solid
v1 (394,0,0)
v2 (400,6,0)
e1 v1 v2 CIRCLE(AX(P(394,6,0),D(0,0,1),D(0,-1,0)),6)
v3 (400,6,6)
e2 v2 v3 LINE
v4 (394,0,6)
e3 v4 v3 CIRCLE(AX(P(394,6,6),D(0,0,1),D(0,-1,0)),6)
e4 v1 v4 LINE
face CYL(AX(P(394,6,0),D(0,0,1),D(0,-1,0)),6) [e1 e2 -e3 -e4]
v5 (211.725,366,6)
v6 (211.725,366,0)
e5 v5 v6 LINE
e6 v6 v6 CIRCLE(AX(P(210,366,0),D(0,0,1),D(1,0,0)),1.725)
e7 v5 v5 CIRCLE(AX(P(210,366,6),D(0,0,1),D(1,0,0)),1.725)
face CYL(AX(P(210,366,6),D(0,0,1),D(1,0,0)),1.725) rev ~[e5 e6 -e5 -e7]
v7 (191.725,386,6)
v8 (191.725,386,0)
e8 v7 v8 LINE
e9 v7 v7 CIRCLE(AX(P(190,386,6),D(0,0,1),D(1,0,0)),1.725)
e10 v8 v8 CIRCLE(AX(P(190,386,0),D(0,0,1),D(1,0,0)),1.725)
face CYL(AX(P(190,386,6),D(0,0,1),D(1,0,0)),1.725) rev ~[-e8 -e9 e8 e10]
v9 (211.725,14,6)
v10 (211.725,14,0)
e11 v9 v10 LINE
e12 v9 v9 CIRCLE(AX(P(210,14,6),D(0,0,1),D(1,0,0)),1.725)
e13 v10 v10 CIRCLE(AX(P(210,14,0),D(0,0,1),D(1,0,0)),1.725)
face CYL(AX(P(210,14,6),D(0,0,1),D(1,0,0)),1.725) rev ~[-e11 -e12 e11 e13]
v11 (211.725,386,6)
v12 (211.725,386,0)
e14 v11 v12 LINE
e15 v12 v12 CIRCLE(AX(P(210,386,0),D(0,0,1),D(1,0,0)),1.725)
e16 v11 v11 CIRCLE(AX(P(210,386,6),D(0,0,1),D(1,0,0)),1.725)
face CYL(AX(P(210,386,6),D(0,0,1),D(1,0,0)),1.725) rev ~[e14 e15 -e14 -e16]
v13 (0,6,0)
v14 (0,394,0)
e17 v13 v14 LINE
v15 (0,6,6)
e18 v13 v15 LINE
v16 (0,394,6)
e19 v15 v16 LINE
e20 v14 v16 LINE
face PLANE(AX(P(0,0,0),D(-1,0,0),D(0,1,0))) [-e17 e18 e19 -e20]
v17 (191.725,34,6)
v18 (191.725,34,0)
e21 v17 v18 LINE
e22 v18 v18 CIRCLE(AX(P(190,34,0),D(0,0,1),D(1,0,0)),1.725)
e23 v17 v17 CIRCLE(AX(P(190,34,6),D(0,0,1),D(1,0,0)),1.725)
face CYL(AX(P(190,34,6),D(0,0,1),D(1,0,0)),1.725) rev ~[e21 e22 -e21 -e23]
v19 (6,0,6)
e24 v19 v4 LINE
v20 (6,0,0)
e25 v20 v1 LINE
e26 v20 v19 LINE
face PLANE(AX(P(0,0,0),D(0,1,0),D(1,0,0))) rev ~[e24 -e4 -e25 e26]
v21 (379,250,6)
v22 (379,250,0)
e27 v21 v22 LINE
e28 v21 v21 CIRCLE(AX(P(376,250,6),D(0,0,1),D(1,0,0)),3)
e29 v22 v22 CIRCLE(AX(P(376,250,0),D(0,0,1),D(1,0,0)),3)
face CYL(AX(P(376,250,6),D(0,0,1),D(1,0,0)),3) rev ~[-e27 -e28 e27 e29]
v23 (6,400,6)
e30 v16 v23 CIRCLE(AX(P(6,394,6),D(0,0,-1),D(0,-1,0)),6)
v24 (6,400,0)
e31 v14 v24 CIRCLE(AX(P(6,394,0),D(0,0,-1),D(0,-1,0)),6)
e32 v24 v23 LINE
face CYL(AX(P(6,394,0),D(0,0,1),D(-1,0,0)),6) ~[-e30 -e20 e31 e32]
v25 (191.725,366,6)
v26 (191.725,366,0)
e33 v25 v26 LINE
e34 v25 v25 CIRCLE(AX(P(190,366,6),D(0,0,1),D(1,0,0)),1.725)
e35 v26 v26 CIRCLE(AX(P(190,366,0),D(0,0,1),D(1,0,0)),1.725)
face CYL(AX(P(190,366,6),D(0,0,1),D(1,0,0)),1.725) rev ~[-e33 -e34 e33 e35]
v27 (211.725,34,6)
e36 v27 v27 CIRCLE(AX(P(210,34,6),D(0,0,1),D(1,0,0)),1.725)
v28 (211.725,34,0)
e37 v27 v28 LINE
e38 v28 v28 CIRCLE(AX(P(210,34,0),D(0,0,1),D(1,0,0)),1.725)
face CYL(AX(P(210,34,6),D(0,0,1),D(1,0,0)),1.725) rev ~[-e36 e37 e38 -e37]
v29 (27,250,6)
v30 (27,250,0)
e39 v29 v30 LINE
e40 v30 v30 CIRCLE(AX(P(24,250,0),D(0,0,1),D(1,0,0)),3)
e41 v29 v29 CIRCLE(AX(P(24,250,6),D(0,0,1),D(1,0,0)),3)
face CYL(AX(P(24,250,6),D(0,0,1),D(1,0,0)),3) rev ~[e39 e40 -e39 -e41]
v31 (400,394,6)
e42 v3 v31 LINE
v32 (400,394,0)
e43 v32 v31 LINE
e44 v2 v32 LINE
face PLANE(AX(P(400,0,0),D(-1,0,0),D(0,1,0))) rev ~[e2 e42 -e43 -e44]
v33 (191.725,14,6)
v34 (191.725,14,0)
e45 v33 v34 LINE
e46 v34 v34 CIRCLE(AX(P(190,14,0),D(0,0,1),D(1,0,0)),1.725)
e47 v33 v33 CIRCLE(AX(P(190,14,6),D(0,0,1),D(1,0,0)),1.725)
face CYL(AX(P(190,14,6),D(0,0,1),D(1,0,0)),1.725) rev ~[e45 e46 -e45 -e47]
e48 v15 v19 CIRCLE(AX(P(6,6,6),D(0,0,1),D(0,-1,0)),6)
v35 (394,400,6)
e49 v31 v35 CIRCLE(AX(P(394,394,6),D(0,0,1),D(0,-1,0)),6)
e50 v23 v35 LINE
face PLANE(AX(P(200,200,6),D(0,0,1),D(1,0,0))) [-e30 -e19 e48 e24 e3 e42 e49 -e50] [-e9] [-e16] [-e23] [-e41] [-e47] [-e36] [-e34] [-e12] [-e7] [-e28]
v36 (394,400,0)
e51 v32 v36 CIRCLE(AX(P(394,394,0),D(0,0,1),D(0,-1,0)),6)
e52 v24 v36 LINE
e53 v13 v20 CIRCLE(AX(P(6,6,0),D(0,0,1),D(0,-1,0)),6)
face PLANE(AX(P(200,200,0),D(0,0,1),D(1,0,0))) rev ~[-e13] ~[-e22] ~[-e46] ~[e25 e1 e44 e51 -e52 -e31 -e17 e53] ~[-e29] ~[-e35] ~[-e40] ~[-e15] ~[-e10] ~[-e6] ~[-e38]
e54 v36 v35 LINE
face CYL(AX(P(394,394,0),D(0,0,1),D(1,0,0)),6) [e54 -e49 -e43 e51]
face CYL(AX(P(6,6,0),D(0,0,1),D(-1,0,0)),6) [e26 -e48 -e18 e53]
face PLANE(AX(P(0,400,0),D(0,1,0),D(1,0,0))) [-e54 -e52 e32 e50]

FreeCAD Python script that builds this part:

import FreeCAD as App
import Part
import Sketcher
from FreeCAD import Vector


def edges_at(feature, points):
    """Names of the edges that pass closest to the given points."""
    edges = feature.Shape.Edges
    near = lambda p: min(range(len(edges)), key=lambda i: edges[i].distToShape(Part.Vertex(*p))[0])
    return sorted({f"Edge{near(p) + 1}" for p in points})


def add_polygon(sketch, points):
    """Adds a closed chain of lines whose ends are joined by coincident constraints."""
    first, n = sketch.GeometryCount, len(points)
    for a, b in zip(points, points[1:] + points[:1]):
        sketch.addGeometry(Part.LineSegment(App.Vector(*a, 0), App.Vector(*b, 0)), False)
    for i in range(n):
        sketch.addConstraint(Sketcher.Constraint("Coincident", first + i, 2, first + (i + 1) % n, 1))

doc = App.newDocument("Part")
params = doc.addObject("Spreadsheet::Sheet", "Params")
for row, (alias, value) in enumerate([
    ("sketch1_width", "400 mm"),
    ("pad1_length", "6 mm"),
    ("fillet_radius", "6 mm"),
    ("sketch2_diameter", "6 mm"),
    ("sketch2_diameter2", "3.45 mm"),
], start=1):
    params.set(f"A{row}", alias)
    params.set(f"B{row}", "=" + value)
    params.setAlias(f"B{row}", alias)

body = doc.addObject("PartDesign::Body", "Body")

# Sketch on XY plane
sketch1 = doc.addObject("Sketcher::SketchObject", "Sketch")
body.addObject(sketch1)
sketch1.AttachmentSupport = (doc.XY_Plane, [""])
sketch1.MapMode = "FlatFace"
add_polygon(sketch1, [(0, 400), (0, 0), (400, 0), (400, 400)])  # lines 0-3
sketch1.addConstraint([
    Sketcher.Constraint("Vertical", 0),
    Sketcher.Constraint("Horizontal", 1),
    Sketcher.Constraint("Vertical", 2),
    Sketcher.Constraint("Horizontal", 3),
    Sketcher.Constraint("Coincident", 0, 2, -1, 1),
    Sketcher.Constraint("Equal", 3, 0),
    Sketcher.Constraint("DistanceX", 1, 1, 1, 2, 400.0),
])
sketch1.setExpression("Constraints[10]", "Params.sketch1_width")
pad1 = doc.addObject("PartDesign::Pad", "Pad")
body.addObject(pad1)
pad1.Profile = sketch1
pad1.setExpression("Length", "Params.pad1_length")
doc.recompute()

fillet = doc.addObject("PartDesign::Fillet", "Fillet")
body.addObject(fillet)
fillet.Base = (pad1, edges_at(pad1, [
    (0, 400, 3),
    (400, 400, 3),
    (400, 0, 3),
    (0, 0, 3),
]))
fillet.setExpression("Radius", "Params.fillet_radius")

# Sketch on XY plane
sketch2 = doc.addObject("Sketcher::SketchObject", "Sketch001")
body.addObject(sketch2)
sketch2.AttachmentSupport = (doc.XY_Plane, [""])
sketch2.MapMode = "FlatFace"
sketch2.AttachmentOffset = App.Placement(Vector(0, 0, 6), App.Rotation())
sketch2.addGeometry([
    Part.Circle(Vector(24, 250, 0), Vector(0, 0, 1), 3),  # 0
    Part.Circle(Vector(376, 250, 0), Vector(0, 0, 1), 3),  # 1
    Part.Circle(Vector(190, 386, 0), Vector(0, 0, 1), 1.7),  # 2
    Part.Circle(Vector(210, 386, 0), Vector(0, 0, 1), 1.7),  # 3
    Part.Circle(Vector(210, 366, 0), Vector(0, 0, 1), 1.7),  # 4
    Part.Circle(Vector(190, 366, 0), Vector(0, 0, 1), 1.7),  # 5
    Part.Circle(Vector(190, 34, 0), Vector(0, 0, 1), 1.7),  # 6
    Part.Circle(Vector(210, 34, 0), Vector(0, 0, 1), 1.7),  # 7
    Part.Circle(Vector(210, 14, 0), Vector(0, 0, 1), 1.7),  # 8
    Part.Circle(Vector(190, 14, 0), Vector(0, 0, 1), 1.7),  # 9
], False)
sketch2.addConstraint([
    Sketcher.Constraint("Equal", 0, 1),
    Sketcher.Constraint("Equal", 2, 3),
    Sketcher.Constraint("Equal", 3, 4),
    Sketcher.Constraint("Equal", 4, 5),
    Sketcher.Constraint("Equal", 5, 6),
    Sketcher.Constraint("Equal", 6, 7),
    Sketcher.Constraint("Equal", 7, 8),
    Sketcher.Constraint("Equal", 8, 9),
    Sketcher.Constraint("Horizontal", 0, 3, 1, 3),
    Sketcher.Constraint("Horizontal", 2, 3, 3, 3),
    Sketcher.Constraint("Horizontal", 4, 3, 5, 3),
    Sketcher.Constraint("Horizontal", 6, 3, 7, 3),
    Sketcher.Constraint("Horizontal", 8, 3, 9, 3),
    Sketcher.Constraint("Vertical", 3, 3, 4, 3),
    Sketcher.Constraint("Vertical", 2, 3, 5, 3),
    Sketcher.Constraint("Vertical", 5, 3, 6, 3),
    Sketcher.Constraint("Vertical", 4, 3, 7, 3),
    Sketcher.Constraint("Vertical", 7, 3, 8, 3),
    Sketcher.Constraint("Vertical", 6, 3, 9, 3),
    Sketcher.Constraint("Diameter", 0, 6.0),
    Sketcher.Constraint("Diameter", 2, 3.45),
    Sketcher.Constraint("DistanceX", -1, 1, 0, 3, 24.0),
    Sketcher.Constraint("DistanceY", -1, 1, 0, 3, 250.0),
    Sketcher.Constraint("DistanceX", -1, 1, 1, 3, 376.0),
    Sketcher.Constraint("DistanceX", -1, 1, 2, 3, 190.0),
    Sketcher.Constraint("DistanceY", -1, 1, 2, 3, 386.0),
    Sketcher.Constraint("DistanceX", -1, 1, 3, 3, 210.0),
    Sketcher.Constraint("DistanceY", -1, 1, 4, 3, 366.0),
    Sketcher.Constraint("DistanceY", -1, 1, 6, 3, 34.0),
    Sketcher.Constraint("DistanceY", -1, 1, 8, 3, 14.0),
])
sketch2.setExpression("Constraints[19]", "Params.sketch2_diameter")
sketch2.setExpression("Constraints[20]", "Params.sketch2_diameter2")
pocket1 = doc.addObject("PartDesign::Pocket", "Pocket")
body.addObject(pocket1)
pocket1.Profile = sketch2
pocket1.Type = "ThroughAll"

doc.recompute()
